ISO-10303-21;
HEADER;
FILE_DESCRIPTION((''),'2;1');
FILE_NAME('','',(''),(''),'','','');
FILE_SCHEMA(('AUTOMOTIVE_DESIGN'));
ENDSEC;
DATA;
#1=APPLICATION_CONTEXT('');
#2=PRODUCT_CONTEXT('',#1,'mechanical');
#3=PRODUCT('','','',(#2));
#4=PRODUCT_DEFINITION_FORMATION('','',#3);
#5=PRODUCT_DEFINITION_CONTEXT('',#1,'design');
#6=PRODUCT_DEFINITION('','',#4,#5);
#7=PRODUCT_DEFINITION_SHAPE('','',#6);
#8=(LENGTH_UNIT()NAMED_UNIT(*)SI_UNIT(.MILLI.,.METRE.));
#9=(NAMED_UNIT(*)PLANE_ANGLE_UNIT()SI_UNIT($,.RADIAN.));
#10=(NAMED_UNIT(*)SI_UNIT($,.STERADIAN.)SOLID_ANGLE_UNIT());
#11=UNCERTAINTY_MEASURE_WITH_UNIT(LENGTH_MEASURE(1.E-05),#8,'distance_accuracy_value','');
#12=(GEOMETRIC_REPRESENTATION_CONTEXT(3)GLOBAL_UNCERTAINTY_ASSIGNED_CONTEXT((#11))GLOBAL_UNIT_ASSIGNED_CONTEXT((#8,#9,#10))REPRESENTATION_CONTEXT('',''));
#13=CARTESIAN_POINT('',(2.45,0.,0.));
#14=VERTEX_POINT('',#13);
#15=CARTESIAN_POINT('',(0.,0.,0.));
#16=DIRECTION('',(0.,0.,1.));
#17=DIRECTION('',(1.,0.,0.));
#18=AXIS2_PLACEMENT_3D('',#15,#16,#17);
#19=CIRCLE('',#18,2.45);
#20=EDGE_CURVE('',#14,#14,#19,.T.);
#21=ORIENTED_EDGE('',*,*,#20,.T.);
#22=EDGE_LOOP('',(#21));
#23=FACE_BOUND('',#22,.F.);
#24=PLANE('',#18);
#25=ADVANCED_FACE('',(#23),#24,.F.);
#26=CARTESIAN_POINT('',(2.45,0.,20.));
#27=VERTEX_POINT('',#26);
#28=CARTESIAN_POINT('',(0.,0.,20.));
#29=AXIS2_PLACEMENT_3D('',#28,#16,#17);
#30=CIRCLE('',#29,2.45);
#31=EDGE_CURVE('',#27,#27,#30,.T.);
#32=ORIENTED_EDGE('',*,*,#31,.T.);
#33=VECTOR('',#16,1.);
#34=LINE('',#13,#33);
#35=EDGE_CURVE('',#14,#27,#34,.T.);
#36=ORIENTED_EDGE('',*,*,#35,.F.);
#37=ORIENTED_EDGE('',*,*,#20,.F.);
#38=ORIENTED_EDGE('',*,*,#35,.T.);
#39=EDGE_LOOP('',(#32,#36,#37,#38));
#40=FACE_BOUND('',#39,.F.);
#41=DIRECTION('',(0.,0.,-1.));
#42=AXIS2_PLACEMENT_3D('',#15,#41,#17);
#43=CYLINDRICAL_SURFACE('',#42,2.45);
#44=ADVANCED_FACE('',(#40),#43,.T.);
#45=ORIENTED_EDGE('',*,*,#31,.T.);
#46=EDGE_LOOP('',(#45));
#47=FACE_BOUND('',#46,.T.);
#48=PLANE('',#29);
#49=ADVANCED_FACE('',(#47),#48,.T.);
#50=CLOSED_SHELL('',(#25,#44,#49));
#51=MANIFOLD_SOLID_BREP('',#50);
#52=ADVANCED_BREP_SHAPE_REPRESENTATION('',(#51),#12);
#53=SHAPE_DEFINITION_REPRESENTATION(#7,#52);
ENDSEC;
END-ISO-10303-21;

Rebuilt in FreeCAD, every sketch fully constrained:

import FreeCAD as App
import Part
import Sketcher
from FreeCAD import Vector
Q = App.Units.Quantity

doc = App.newDocument("Part")
params = doc.addObject("Spreadsheet::Sheet", "Params")
for row, (alias, value) in enumerate([
    ("sketch1_diameter", "4.9 mm"),
    ("pad1_length", "20 mm"),
], start=1):
    params.set(f"A{row}", alias)
    params.set(f"B{row}", "=" + value)
    params.setAlias(f"B{row}", alias)

body = doc.addObject("PartDesign::Body", "Body")

# Sketch on XY plane
sketch1 = body.newObject("Sketcher::SketchObject", "Sketch")
sketch1.AttachmentSupport = (doc.getObject("XY_Plane"), [""])
sketch1.MapMode = "FlatFace"
sketch1.addGeometry(Part.Circle(Vector(0, 0, 0), Vector(0, 0, 1), 2.45), False)
sketch1.addConstraint(Sketcher.Constraint("Coincident", 0, 3, -1, 1))
sketch1.addConstraint(Sketcher.Constraint("Diameter", 0, Q("4.9 mm")))
sketch1.setExpression("Constraints[1]", "Params.sketch1_diameter")
pad1 = body.newObject("PartDesign::Pad", "Pad")
pad1.Profile = sketch1
pad1.setExpression("Length", "Params.pad1_length")

doc.recompute()
